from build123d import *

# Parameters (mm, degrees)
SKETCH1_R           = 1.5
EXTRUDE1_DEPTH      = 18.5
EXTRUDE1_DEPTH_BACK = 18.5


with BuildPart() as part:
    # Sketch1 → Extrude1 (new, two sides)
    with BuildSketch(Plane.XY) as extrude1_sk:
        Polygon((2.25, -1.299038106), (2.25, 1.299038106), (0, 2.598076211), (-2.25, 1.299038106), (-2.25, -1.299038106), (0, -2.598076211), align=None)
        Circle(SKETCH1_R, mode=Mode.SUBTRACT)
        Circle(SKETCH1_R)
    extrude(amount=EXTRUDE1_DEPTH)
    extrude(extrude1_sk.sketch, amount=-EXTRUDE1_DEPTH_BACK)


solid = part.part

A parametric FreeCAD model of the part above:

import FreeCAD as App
import Part
import Sketcher

V = App.Vector
Q = App.Units.Quantity

doc = App.newDocument("Part")
body = doc.addObject("PartDesign::Body", "Body")

# Sketch on XY plane
sketch1 = body.newObject("Sketcher::SketchObject", "Sketch")
sketch1.AttachmentSupport = (doc.getObject("XY_Plane"), [""])
sketch1.MapMode = "FlatFace"
sketch1.addGeometry(Part.LineSegment(V(2.25, -1.299038, 0), V(2.25, 1.299038, 0)), False)
sketch1.addGeometry(Part.LineSegment(V(2.25, 1.299038, 0), V(0, 2.598076, 0)), False)
sketch1.addGeometry(Part.LineSegment(V(0, 2.598076, 0), V(-2.25, 1.299038, 0)), False)
sketch1.addGeometry(Part.LineSegment(V(-2.25, 1.299038, 0), V(-2.25, -1.299038, 0)), False)
sketch1.addGeometry(Part.LineSegment(V(-2.25, -1.299038, 0), V(0, -2.598076, 0)), False)
sketch1.addGeometry(Part.LineSegment(V(0, -2.598076, 0), V(2.25, -1.299038, 0)), False)
sketch1.addConstraint(Sketcher.Constraint("Coincident", 0, 2, 1, 1))
sketch1.addConstraint(Sketcher.Constraint("Coincident", 1, 2, 2, 1))
sketch1.addConstraint(Sketcher.Constraint("Coincident", 2, 2, 3, 1))
sketch1.addConstraint(Sketcher.Constraint("Coincident", 3, 2, 4, 1))
sketch1.addConstraint(Sketcher.Constraint("Coincident", 4, 2, 5, 1))
sketch1.addConstraint(Sketcher.Constraint("Coincident", 5, 2, 0, 1))
sketch1.addConstraint(Sketcher.Constraint("Vertical", 0))
sketch1.addConstraint(Sketcher.Constraint("Vertical", 3))
sketch1.addConstraint(Sketcher.Constraint("Symmetric", 0, 2, 3, 2, -1, 1))
sketch1.addConstraint(Sketcher.Constraint("Symmetric", 1, 2, 4, 2, -1, 1))
sketch1.addConstraint(Sketcher.Constraint("PointOnObject", 1, 2, -2))
sketch1.addConstraint(Sketcher.Constraint("Parallel", 2, 5))
sketch1.addConstraint(Sketcher.Constraint("Horizontal", 0, 2, 2, 2))
sketch1.addConstraint(Sketcher.Constraint("Angle", 1, Q("150 deg")))
sketch1.addConstraint(Sketcher.Constraint("DistanceX", 2, 2, 0, 2, 4.5))
sketch1.addConstraint(Sketcher.Constraint("DistanceY", 0, 1, 0, 2, 2.598076))
pad1 = body.newObject("PartDesign::Pad", "Pad")
pad1.Profile = sketch1
pad1.Type = "TwoLengths"
pad1.Length = 18.5
pad1.Length2 = 18.5

doc.recompute()
